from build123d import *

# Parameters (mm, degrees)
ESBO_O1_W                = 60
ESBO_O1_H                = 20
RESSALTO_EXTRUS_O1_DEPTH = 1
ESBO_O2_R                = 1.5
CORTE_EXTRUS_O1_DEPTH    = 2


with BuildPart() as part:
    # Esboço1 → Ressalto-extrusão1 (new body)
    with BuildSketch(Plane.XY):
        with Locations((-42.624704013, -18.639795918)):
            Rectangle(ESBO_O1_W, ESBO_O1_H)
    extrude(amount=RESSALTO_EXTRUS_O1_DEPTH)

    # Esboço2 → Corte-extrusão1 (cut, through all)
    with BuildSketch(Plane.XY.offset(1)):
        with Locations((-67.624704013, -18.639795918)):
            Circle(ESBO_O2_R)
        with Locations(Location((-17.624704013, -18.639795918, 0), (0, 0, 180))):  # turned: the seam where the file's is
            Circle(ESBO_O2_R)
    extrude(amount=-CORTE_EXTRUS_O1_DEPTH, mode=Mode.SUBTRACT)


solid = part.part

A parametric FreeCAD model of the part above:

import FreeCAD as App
import Part
import Sketcher

V = App.Vector
Q = App.Units.Quantity

doc = App.newDocument("Part")
body = doc.addObject("PartDesign::Body", "Body")

sketch1 = body.newObject("Sketcher::SketchObject", "Sketch")
sketch1.AttachmentSupport = (doc.getObject("XY_Plane"), [""])
sketch1.MapMode = "FlatFace"
sketch1.addGeometry([
    Part.LineSegment(V(-72.624704, -8.639796, 0), V(-72.624704, -28.639796, 0)),
    Part.LineSegment(V(-72.624704, -28.639796, 0), V(-12.624704, -28.639796, 0)),
    Part.LineSegment(V(-12.624704, -28.639796, 0), V(-12.624704, -8.639796, 0)),
    Part.LineSegment(V(-12.624704, -8.639796, 0), V(-72.624704, -8.639796, 0)),
], False)
sketch1.addConstraint([
    Sketcher.Constraint("Coincident", 0, 2, 1, 1),
    Sketcher.Constraint("Coincident", 1, 2, 2, 1),
    Sketcher.Constraint("Coincident", 2, 2, 3, 1),
    Sketcher.Constraint("Coincident", 3, 2, 0, 1),
    Sketcher.Constraint("Vertical", 0),
    Sketcher.Constraint("Horizontal", 1),
    Sketcher.Constraint("Vertical", 2),
    Sketcher.Constraint("Horizontal", 3),
    Sketcher.Constraint("DistanceX", 1, 1, 1, 2, Q("60 mm")),
    Sketcher.Constraint("DistanceY", 0, 2, 0, 1, Q("20 mm")),
    Sketcher.Constraint("DistanceX", 0, 2, -1, 1, Q("72.624704 mm")),
    Sketcher.Constraint("DistanceY", 0, 2, -1, 1, Q("28.639796 mm")),
])
pad1 = body.newObject("PartDesign::Pad", "Pad")
pad1.Profile = sketch1
pad1.Length = 1

sketch2 = body.newObject("Sketcher::SketchObject", "Sketch001")
sketch2.AttachmentSupport = (doc.getObject("XY_Plane"), [""])
sketch2.MapMode = "FlatFace"
sketch2.AttachmentOffset = App.Placement(V(0, 0, 1), App.Rotation())
sketch2.addGeometry([
    Part.Circle(V(-67.624704, -18.639796, 0), V(0, 0, 1), 1.5),
    Part.Circle(V(-17.624704, -18.639796, 0), V(0, 0, 1), 1.5),
], False)
sketch2.addConstraint([
    Sketcher.Constraint("Equal", 0, 1),
    Sketcher.Constraint("Horizontal", 0, 3, 1, 3),
    Sketcher.Constraint("Diameter", 0, Q("3 mm")),
    Sketcher.Constraint("DistanceX", 0, 3, 1, 3, Q("50 mm")),
    Sketcher.Constraint("DistanceX", 0, 3, -1, 1, Q("67.624704 mm")),
    Sketcher.Constraint("DistanceY", 0, 3, -1, 1, Q("18.639796 mm")),
])
pocket1 = body.newObject("PartDesign::Pocket", "Pocket")
pocket1.Profile = sketch2
pocket1.Type = "ThroughAll"

doc.recompute()
